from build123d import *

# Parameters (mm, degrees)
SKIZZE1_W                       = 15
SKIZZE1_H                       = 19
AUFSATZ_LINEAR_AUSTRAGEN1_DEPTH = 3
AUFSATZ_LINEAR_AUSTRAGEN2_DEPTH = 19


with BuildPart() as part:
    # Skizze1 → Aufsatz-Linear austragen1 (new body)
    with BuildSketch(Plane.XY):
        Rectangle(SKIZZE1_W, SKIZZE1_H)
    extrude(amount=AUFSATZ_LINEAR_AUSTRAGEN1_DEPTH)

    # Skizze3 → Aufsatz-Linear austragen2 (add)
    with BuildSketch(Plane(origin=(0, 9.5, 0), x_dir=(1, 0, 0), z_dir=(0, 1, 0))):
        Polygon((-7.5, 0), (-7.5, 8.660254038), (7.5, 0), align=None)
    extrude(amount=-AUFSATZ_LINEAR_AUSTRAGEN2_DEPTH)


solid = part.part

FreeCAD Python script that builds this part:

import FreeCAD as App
import Part
import Sketcher
from FreeCAD import Vector
Q = App.Units.Quantity


def add_polygon(sketch, points):
    """Adds a closed chain of lines whose ends are joined by coincident constraints."""
    first, n = sketch.GeometryCount, len(points)
    for a, b in zip(points, points[1:] + points[:1]):
        sketch.addGeometry(Part.LineSegment(App.Vector(*a, 0), App.Vector(*b, 0)), False)
    for i in range(n):
        sketch.addConstraint(Sketcher.Constraint("Coincident", first + i, 2, first + (i + 1) % n, 1))

doc = App.newDocument("Part")
body = doc.addObject("PartDesign::Body", "Body")

sketch1 = doc.addObject("Sketcher::SketchObject", "Sketch")
body.addObject(sketch1)
sketch1.AttachmentSupport = (doc.XY_Plane, [""])
sketch1.MapMode = "FlatFace"
add_polygon(sketch1, [(-8, 10), (-8, -10), (8, -10), (8, 10)])
sketch1.addConstraint([
    Sketcher.Constraint("Vertical", 0),
    Sketcher.Constraint("Horizontal", 1),
    Sketcher.Constraint("Vertical", 2),
    Sketcher.Constraint("Horizontal", 3),
    Sketcher.Constraint("Symmetric", 0, 2, 2, 2, -1, 1),
    Sketcher.Constraint("DistanceX", 1, 1, 1, 2, Q("15 mm")),
    Sketcher.Constraint("DistanceY", 0, 2, 0, 1, Q("19 mm")),
])
pad1 = doc.addObject("PartDesign::Pad", "Pad")
body.addObject(pad1)
pad1.Profile = sketch1
pad1.Length = 3

sketch2 = doc.addObject("Sketcher::SketchObject", "Sketch001")
body.addObject(sketch2)
sketch2.AttachmentSupport = (doc.XZ_Plane, [""])
sketch2.MapMode = "FlatFace"
sketch2.AttachmentOffset = App.Placement(Vector(0, 0, -9.5), App.Rotation())
add_polygon(sketch2, [(-8, -9), (-8, 0), (8, 0)])
sketch2.addConstraint([
    Sketcher.Constraint("Vertical", 0),
    Sketcher.Constraint("Horizontal", 1),
    Sketcher.Constraint("Symmetric", 0, 2, 1, 2, -1, 1),
    Sketcher.Constraint("DistanceX", 1, 1, 1, 2, Q("15 mm")),
    Sketcher.Constraint("Angle", 2, Q("-150 deg")),
])
pad2 = doc.addObject("PartDesign::Pad", "Pad001")
body.addObject(pad2)
pad2.Profile = sketch2
pad2.Length = 19

doc.recompute()
